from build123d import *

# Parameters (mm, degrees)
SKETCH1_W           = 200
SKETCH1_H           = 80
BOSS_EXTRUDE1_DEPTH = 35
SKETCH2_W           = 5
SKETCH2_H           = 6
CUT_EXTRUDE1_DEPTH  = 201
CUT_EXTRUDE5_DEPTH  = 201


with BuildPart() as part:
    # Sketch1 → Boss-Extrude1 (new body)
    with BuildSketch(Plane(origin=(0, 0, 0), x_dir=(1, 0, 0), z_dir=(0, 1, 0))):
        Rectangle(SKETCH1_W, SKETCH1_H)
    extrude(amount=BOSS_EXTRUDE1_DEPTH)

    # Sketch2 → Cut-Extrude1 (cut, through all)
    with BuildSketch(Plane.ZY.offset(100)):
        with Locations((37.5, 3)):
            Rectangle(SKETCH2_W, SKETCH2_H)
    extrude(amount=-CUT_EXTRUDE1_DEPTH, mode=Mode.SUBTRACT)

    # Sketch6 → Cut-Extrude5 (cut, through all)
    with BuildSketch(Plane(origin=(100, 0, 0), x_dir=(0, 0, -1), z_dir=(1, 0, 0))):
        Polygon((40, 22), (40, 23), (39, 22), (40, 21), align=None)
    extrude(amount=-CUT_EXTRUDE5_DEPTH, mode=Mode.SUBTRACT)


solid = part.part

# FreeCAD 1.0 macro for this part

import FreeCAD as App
import Part
import Sketcher

V = App.Vector


def add_polygon(sketch, points):
    """Adds a closed chain of lines whose ends are joined by coincident constraints."""
    first, n = sketch.GeometryCount, len(points)
    for a, b in zip(points, points[1:] + points[:1]):
        sketch.addGeometry(Part.LineSegment(App.Vector(*a, 0), App.Vector(*b, 0)), False)
    for i in range(n):
        sketch.addConstraint(Sketcher.Constraint("Coincident", first + i, 2, first + (i + 1) % n, 1))

doc = App.newDocument("Part")
body = doc.addObject("PartDesign::Body", "Body")

sketch1 = body.newObject("Sketcher::SketchObject", "Sketch")
sketch1.AttachmentSupport = (doc.getObject("XZ_Plane"), [""])
sketch1.MapMode = "FlatFace"
add_polygon(sketch1, [(-100, -40), (-100, 40), (100, 40), (100, -40)])
sketch1.addConstraint([
    Sketcher.Constraint("Vertical", 0),
    Sketcher.Constraint("Horizontal", 1),
    Sketcher.Constraint("Vertical", 2),
    Sketcher.Constraint("Horizontal", 3),
    Sketcher.Constraint("Symmetric", 0, 2, 2, 2, -1, 1),
    Sketcher.Constraint("DistanceX", 1, 1, 1, 2, 200.0),
    Sketcher.Constraint("DistanceY", 0, 1, 0, 2, 80.0),
])
pad1 = body.newObject("PartDesign::Pad", "Pad")
pad1.Profile = sketch1
pad1.Length = 35
pad1.Reversed = True

sketch2 = body.newObject("Sketcher::SketchObject", "Sketch001")
sketch2.AttachmentSupport = (doc.getObject("YZ_Plane"), [""])
sketch2.MapMode = "FlatFace"
sketch2.AttachmentOffset = App.Placement(V(0, 0, -100), App.Rotation())
add_polygon(sketch2, [(6, 35), (0, 35), (0, 40), (6, 40)])
sketch2.addConstraint([
    Sketcher.Constraint("Horizontal", 0),
    Sketcher.Constraint("Vertical", 1),
    Sketcher.Constraint("Horizontal", 2),
    Sketcher.Constraint("Vertical", 3),
    Sketcher.Constraint("PointOnObject", 0, 2, -2),
    Sketcher.Constraint("DistanceX", 0, 2, 0, 1, 6.0),
    Sketcher.Constraint("DistanceY", 1, 1, 1, 2, 5.0),
    Sketcher.Constraint("DistanceY", -1, 1, 0, 2, 35.0),
])
pocket1 = body.newObject("PartDesign::Pocket", "Pocket")
pocket1.Profile = sketch2
pocket1.Type = "ThroughAll"
pocket1.Reversed = True

sketch3 = body.newObject("Sketcher::SketchObject", "Sketch002")
sketch3.AttachmentSupport = (doc.getObject("YZ_Plane"), [""])
sketch3.MapMode = "FlatFace"
sketch3.AttachmentOffset = App.Placement(V(0, 0, 100), App.Rotation())
add_polygon(sketch3, [(23, -40), (22, -39), (21, -40)])
sketch3.addConstraint([
    Sketcher.Constraint("Horizontal", 2),
    Sketcher.Constraint("Perpendicular", 0, 1),
    Sketcher.Constraint("Equal", 0, 1),
    Sketcher.Constraint("DistanceX", 2, 1, 2, 2, 2.0),
    Sketcher.Constraint("DistanceX", -1, 1, 0, 2, 22.0),
    Sketcher.Constraint("DistanceY", 0, 2, -1, 1, 39.0),
])
pocket2 = body.newObject("PartDesign::Pocket", "Pocket001")
pocket2.Profile = sketch3
pocket2.Type = "ThroughAll"

doc.recompute()
